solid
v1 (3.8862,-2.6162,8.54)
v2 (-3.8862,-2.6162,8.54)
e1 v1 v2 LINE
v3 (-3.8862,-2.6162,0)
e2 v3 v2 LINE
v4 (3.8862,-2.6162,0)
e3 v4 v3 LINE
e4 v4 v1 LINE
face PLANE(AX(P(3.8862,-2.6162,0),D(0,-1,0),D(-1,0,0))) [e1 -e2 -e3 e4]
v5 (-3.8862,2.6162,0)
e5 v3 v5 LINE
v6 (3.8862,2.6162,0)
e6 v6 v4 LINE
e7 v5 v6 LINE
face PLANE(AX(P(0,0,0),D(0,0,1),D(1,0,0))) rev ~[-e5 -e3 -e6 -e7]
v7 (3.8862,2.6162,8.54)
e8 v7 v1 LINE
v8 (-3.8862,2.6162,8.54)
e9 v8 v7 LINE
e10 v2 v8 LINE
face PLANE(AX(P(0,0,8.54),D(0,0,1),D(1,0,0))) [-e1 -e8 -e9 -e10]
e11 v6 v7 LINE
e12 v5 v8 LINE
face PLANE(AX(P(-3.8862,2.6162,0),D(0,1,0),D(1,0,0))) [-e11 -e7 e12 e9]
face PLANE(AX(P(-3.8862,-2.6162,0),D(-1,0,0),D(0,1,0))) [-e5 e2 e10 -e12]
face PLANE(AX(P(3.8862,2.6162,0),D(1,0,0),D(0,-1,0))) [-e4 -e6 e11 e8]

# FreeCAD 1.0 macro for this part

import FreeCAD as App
import Part
import Sketcher
from FreeCAD import Vector
Q = App.Units.Quantity


def add_polygon(sketch, points):
    """Adds a closed chain of lines whose ends are joined by coincident constraints."""
    first, n = sketch.GeometryCount, len(points)
    for a, b in zip(points, points[1:] + points[:1]):
        sketch.addGeometry(Part.LineSegment(App.Vector(*a, 0), App.Vector(*b, 0)), False)
    for i in range(n):
        sketch.addConstraint(Sketcher.Constraint("Coincident", first + i, 2, first + (i + 1) % n, 1))

doc = App.newDocument("Part")
body = doc.addObject("PartDesign::Body", "Body")

sketch1 = body.newObject("Sketcher::SketchObject", "Sketch")
sketch1.AttachmentSupport = (doc.getObject("XY_Plane"), [""])
sketch1.MapMode = "FlatFace"
add_polygon(sketch1, [(-4, -3), (4, -3), (4, 3), (-4, 3)])
sketch1.addConstraint([
    Sketcher.Constraint("Horizontal", 0),
    Sketcher.Constraint("Vertical", 1),
    Sketcher.Constraint("Horizontal", 2),
    Sketcher.Constraint("Vertical", 3),
    Sketcher.Constraint("Symmetric", 0, 2, 2, 2, -1, 1),
    Sketcher.Constraint("DistanceX", 0, 1, 0, 2, Q("0.306 in")),
    Sketcher.Constraint("DistanceY", 1, 1, 1, 2, Q("0.206 in")),
])
pad1 = body.newObject("PartDesign::Pad", "Pad")
pad1.Profile = sketch1
pad1.Length = 8.54

doc.recompute()
